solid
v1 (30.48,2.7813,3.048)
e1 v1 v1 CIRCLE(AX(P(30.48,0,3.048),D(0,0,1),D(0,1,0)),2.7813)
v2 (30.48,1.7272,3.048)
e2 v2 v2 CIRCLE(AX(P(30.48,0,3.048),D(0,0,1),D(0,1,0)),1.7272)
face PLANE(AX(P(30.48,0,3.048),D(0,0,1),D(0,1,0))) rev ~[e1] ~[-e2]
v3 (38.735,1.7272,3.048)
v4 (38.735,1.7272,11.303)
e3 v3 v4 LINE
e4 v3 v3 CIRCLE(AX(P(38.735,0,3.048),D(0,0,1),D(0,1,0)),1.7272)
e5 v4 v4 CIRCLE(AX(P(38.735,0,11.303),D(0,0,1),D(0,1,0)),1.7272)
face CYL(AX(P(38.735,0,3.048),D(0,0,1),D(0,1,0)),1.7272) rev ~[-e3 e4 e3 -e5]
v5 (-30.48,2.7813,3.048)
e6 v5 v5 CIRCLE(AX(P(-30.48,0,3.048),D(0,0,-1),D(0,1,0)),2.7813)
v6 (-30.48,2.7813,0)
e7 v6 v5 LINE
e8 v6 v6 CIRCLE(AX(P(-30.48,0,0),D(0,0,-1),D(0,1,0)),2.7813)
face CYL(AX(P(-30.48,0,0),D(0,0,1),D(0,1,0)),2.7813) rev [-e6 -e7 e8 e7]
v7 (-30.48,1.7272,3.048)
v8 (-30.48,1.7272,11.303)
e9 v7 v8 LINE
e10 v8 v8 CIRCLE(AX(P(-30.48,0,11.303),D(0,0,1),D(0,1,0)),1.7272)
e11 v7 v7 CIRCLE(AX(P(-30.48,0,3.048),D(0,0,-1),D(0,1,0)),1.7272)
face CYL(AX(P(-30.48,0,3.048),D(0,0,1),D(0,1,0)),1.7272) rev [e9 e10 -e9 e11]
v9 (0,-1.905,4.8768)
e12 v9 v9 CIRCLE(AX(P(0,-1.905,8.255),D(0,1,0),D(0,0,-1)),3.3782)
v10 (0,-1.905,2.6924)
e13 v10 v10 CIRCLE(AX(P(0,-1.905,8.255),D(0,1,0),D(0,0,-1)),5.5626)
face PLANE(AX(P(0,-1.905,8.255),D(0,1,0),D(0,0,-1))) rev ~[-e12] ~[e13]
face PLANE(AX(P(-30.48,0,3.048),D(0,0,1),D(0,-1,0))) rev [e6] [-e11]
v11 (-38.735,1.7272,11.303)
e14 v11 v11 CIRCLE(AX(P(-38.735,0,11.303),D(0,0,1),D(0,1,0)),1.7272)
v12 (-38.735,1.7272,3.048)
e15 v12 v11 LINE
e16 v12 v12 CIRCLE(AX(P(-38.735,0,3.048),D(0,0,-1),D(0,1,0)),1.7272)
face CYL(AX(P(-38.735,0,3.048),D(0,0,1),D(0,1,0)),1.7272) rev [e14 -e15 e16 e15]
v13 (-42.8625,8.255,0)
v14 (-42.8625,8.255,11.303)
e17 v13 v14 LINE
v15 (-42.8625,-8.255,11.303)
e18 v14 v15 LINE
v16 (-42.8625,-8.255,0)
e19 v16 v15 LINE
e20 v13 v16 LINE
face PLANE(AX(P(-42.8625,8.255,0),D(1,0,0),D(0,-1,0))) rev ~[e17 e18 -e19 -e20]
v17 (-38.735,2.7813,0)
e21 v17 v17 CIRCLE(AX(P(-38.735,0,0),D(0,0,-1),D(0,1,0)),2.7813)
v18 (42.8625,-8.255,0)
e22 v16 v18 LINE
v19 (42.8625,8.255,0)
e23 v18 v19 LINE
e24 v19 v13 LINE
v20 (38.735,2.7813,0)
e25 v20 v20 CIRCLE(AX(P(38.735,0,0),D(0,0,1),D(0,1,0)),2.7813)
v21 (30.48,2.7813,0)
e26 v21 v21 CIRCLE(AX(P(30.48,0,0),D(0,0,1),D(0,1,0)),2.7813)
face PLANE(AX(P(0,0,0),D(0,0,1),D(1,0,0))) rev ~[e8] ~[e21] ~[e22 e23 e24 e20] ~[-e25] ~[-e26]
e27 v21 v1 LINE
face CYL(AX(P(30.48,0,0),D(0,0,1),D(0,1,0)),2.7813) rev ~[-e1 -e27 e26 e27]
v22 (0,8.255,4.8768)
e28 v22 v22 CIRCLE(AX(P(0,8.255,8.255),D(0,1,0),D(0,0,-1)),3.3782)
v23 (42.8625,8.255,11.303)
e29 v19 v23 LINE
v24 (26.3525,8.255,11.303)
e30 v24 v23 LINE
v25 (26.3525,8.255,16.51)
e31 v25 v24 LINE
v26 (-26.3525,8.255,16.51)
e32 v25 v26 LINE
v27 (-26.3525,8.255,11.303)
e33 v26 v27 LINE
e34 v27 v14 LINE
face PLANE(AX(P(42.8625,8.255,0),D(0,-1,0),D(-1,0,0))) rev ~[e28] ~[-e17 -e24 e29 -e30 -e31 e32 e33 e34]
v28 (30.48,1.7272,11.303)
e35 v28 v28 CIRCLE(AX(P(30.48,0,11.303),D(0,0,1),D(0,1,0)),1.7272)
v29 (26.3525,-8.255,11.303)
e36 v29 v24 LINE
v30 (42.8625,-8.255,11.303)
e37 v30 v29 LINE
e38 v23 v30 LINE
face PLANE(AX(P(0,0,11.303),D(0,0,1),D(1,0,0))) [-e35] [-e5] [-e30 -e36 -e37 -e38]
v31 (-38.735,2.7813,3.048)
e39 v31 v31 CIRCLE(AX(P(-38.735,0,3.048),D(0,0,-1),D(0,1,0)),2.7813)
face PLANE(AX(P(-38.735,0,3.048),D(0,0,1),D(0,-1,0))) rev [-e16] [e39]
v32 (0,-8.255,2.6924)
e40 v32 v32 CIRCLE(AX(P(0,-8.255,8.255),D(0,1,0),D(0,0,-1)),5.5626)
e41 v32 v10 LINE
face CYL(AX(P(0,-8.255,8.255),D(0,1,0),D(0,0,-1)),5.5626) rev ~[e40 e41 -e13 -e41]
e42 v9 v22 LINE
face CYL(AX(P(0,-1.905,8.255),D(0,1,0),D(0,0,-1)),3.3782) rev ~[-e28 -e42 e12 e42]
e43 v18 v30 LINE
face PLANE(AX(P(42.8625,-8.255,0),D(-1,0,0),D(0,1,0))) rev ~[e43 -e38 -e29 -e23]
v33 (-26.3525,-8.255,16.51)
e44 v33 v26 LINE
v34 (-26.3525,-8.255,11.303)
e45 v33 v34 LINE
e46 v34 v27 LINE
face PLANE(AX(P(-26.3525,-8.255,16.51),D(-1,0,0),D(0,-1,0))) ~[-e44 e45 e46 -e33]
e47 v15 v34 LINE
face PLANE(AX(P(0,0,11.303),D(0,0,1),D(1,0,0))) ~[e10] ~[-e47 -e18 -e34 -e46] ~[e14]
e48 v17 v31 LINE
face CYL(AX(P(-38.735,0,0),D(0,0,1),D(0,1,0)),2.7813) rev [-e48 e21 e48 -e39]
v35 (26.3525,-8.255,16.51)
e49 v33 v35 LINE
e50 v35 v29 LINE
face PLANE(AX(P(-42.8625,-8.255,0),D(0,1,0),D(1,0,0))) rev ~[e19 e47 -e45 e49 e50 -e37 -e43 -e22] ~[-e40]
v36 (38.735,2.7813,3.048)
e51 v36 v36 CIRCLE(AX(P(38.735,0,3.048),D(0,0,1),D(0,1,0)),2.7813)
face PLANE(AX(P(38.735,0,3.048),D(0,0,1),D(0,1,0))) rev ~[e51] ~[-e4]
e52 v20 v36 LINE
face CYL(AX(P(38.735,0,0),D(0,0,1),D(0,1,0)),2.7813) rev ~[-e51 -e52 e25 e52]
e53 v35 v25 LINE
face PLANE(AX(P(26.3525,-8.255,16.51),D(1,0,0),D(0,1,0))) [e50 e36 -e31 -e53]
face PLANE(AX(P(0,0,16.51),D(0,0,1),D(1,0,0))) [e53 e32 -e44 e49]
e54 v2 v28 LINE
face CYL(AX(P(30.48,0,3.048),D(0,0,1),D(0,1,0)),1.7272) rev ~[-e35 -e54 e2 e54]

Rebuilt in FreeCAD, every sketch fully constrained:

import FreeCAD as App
import Part
import Sketcher
from FreeCAD import Vector
Q = App.Units.Quantity

doc = App.newDocument("Part")
body = doc.addObject("PartDesign::Body", "Body")

# Sketch on XY plane
sketch1 = body.newObject("Sketcher::SketchObject", "Sketch")
sketch1.AttachmentSupport = (doc.getObject("XY_Plane"), [""])
sketch1.MapMode = "FlatFace"
sketch1.addGeometry(Part.LineSegment(Vector(-43, 8, 0), Vector(-43, -8, 0)), False)
sketch1.addGeometry(Part.LineSegment(Vector(-43, -8, 0), Vector(43, -8, 0)), False)
sketch1.addGeometry(Part.LineSegment(Vector(43, -8, 0), Vector(43, 8, 0)), False)
sketch1.addGeometry(Part.LineSegment(Vector(43, 8, 0), Vector(-43, 8, 0)), False)
sketch1.addConstraint(Sketcher.Constraint("Coincident", 0, 2, 1, 1))
sketch1.addConstraint(Sketcher.Constraint("Coincident", 1, 2, 2, 1))
sketch1.addConstraint(Sketcher.Constraint("Coincident", 2, 2, 3, 1))
sketch1.addConstraint(Sketcher.Constraint("Coincident", 3, 2, 0, 1))
sketch1.addConstraint(Sketcher.Constraint("Vertical", 0))
sketch1.addConstraint(Sketcher.Constraint("Horizontal", 1))
sketch1.addConstraint(Sketcher.Constraint("Vertical", 2))
sketch1.addConstraint(Sketcher.Constraint("Horizontal", 3))
sketch1.addConstraint(Sketcher.Constraint("Symmetric", 0, 2, 2, 2, -1, 1))
sketch1.addConstraint(Sketcher.Constraint("DistanceY", 0, 2, 0, 1, Q("0.65 in")))
sketch1.addConstraint(Sketcher.Constraint("DistanceX", 1, 1, 1, 2, Q("3.375 in")))
pad1 = body.newObject("PartDesign::Pad", "Pad")
pad1.Profile = sketch1
pad1.Length = Q("0.65 in")

# Sketch on XY plane
sketch2 = body.newObject("Sketcher::SketchObject", "Sketch001")
sketch2.AttachmentSupport = (doc.getObject("XY_Plane"), [""])
sketch2.MapMode = "FlatFace"
sketch2.addGeometry(Part.Circle(Vector(30.5, 0, 0), Vector(0, 0, 1), 1.7), False)
sketch2.addGeometry(Part.Circle(Vector(38.7, 0, 0), Vector(0, 0, 1), 1.7), False)
sketch2.addConstraint(Sketcher.Constraint("Equal", 0, 1))
sketch2.addConstraint(Sketcher.Constraint("PointOnObject", 0, 3, -1))
sketch2.addConstraint(Sketcher.Constraint("PointOnObject", 1, 3, -1))
sketch2.addConstraint(Sketcher.Constraint("Diameter", 0, Q("0.136 in")))
sketch2.addConstraint(Sketcher.Constraint("DistanceX", -1, 1, 0, 3, Q("1.2 in")))
sketch2.addConstraint(Sketcher.Constraint("DistanceX", -1, 1, 1, 3, Q("1.525 in")))
doc.recompute()
hole = body.newObject("PartDesign::Hole", "Hole")
hole.Profile = sketch2
hole.ThreadType = "None"
hole.Diameter = Q("0.136 in")
hole.DepthType = "ThroughAll"
hole.HoleCutType = "Counterbore"
hole.HoleCutDiameter = Q("0.219 in")
hole.HoleCutDepth = Q("0.12 in")
hole.Reversed = True

# Sketch on XY plane
sketch3 = body.newObject("Sketcher::SketchObject", "Sketch002")
sketch3.AttachmentSupport = (doc.getObject("XY_Plane"), [""])
sketch3.MapMode = "FlatFace"
sketch3.AttachmentOffset = App.Placement(Vector(0, 0, 0.65 * 25.4), App.Rotation())
sketch3.addGeometry(Part.LineSegment(Vector(26, -8, 0), Vector(43, -8, 0)), False)
sketch3.addGeometry(Part.LineSegment(Vector(43, -8, 0), Vector(43, 8, 0)), False)
sketch3.addGeometry(Part.LineSegment(Vector(43, 8, 0), Vector(26, 8, 0)), False)
sketch3.addGeometry(Part.LineSegment(Vector(26, 8, 0), Vector(26, -8, 0)), False)
sketch3.addConstraint(Sketcher.Constraint("Coincident", 0, 2, 1, 1))
sketch3.addConstraint(Sketcher.Constraint("Coincident", 1, 2, 2, 1))
sketch3.addConstraint(Sketcher.Constraint("Coincident", 2, 2, 3, 1))
sketch3.addConstraint(Sketcher.Constraint("Coincident", 3, 2, 0, 1))
sketch3.addConstraint(Sketcher.Constraint("Horizontal", 0))
sketch3.addConstraint(Sketcher.Constraint("Vertical", 1))
sketch3.addConstraint(Sketcher.Constraint("Horizontal", 2))
sketch3.addConstraint(Sketcher.Constraint("Vertical", 3))
sketch3.addConstraint(Sketcher.Constraint("Equal", 2, 1))
sketch3.addConstraint(Sketcher.Constraint("DistanceX", 0, 1, 0, 2, Q("0.65 in")))
sketch3.addConstraint(Sketcher.Constraint("DistanceX", -1, 1, 0, 2, Q("1.6875 in")))
sketch3.addConstraint(Sketcher.Constraint("DistanceY", 0, 2, -1, 1, Q("0.325 in")))
pocket1 = body.newObject("PartDesign::Pocket", "Pocket")
pocket1.Profile = sketch3
pocket1.Length = Q("0.205 in")
doc.recompute()

mirrored = body.newObject("PartDesign::Mirrored", "Mirrored")
mirrored.Originals = [hole, pocket1]
mirrored.MirrorPlane = (doc.getObject("YZ_Plane"), [""])
body.Tip = mirrored

# Sketch on XZ plane
sketch4 = body.newObject("Sketcher::SketchObject", "Sketch003")
sketch4.AttachmentSupport = (doc.getObject("XZ_Plane"), [""])
sketch4.MapMode = "FlatFace"
sketch4.AttachmentOffset = App.Placement(Vector(0, 0, 0.325 * 25.4), App.Rotation())
sketch4.addGeometry(Part.Circle(Vector(0, 8.3, 0), Vector(0, 0, 1), 3.4), False)
sketch4.addConstraint(Sketcher.Constraint("PointOnObject", 0, 3, -2))
sketch4.addConstraint(Sketcher.Constraint("Diameter", 0, Q("0.266 in")))
sketch4.addConstraint(Sketcher.Constraint("DistanceY", -1, 1, 0, 3, Q("0.325 in")))
doc.recompute()
hole2 = body.newObject("PartDesign::Hole", "Hole001")
hole2.Profile = sketch4
hole2.ThreadType = "None"
hole2.Diameter = Q("0.266 in")
hole2.DepthType = "ThroughAll"
hole2.HoleCutType = "Counterbore"
hole2.HoleCutDiameter = Q("0.438 in")
hole2.HoleCutDepth = Q("0.25 in")

doc.recompute()
